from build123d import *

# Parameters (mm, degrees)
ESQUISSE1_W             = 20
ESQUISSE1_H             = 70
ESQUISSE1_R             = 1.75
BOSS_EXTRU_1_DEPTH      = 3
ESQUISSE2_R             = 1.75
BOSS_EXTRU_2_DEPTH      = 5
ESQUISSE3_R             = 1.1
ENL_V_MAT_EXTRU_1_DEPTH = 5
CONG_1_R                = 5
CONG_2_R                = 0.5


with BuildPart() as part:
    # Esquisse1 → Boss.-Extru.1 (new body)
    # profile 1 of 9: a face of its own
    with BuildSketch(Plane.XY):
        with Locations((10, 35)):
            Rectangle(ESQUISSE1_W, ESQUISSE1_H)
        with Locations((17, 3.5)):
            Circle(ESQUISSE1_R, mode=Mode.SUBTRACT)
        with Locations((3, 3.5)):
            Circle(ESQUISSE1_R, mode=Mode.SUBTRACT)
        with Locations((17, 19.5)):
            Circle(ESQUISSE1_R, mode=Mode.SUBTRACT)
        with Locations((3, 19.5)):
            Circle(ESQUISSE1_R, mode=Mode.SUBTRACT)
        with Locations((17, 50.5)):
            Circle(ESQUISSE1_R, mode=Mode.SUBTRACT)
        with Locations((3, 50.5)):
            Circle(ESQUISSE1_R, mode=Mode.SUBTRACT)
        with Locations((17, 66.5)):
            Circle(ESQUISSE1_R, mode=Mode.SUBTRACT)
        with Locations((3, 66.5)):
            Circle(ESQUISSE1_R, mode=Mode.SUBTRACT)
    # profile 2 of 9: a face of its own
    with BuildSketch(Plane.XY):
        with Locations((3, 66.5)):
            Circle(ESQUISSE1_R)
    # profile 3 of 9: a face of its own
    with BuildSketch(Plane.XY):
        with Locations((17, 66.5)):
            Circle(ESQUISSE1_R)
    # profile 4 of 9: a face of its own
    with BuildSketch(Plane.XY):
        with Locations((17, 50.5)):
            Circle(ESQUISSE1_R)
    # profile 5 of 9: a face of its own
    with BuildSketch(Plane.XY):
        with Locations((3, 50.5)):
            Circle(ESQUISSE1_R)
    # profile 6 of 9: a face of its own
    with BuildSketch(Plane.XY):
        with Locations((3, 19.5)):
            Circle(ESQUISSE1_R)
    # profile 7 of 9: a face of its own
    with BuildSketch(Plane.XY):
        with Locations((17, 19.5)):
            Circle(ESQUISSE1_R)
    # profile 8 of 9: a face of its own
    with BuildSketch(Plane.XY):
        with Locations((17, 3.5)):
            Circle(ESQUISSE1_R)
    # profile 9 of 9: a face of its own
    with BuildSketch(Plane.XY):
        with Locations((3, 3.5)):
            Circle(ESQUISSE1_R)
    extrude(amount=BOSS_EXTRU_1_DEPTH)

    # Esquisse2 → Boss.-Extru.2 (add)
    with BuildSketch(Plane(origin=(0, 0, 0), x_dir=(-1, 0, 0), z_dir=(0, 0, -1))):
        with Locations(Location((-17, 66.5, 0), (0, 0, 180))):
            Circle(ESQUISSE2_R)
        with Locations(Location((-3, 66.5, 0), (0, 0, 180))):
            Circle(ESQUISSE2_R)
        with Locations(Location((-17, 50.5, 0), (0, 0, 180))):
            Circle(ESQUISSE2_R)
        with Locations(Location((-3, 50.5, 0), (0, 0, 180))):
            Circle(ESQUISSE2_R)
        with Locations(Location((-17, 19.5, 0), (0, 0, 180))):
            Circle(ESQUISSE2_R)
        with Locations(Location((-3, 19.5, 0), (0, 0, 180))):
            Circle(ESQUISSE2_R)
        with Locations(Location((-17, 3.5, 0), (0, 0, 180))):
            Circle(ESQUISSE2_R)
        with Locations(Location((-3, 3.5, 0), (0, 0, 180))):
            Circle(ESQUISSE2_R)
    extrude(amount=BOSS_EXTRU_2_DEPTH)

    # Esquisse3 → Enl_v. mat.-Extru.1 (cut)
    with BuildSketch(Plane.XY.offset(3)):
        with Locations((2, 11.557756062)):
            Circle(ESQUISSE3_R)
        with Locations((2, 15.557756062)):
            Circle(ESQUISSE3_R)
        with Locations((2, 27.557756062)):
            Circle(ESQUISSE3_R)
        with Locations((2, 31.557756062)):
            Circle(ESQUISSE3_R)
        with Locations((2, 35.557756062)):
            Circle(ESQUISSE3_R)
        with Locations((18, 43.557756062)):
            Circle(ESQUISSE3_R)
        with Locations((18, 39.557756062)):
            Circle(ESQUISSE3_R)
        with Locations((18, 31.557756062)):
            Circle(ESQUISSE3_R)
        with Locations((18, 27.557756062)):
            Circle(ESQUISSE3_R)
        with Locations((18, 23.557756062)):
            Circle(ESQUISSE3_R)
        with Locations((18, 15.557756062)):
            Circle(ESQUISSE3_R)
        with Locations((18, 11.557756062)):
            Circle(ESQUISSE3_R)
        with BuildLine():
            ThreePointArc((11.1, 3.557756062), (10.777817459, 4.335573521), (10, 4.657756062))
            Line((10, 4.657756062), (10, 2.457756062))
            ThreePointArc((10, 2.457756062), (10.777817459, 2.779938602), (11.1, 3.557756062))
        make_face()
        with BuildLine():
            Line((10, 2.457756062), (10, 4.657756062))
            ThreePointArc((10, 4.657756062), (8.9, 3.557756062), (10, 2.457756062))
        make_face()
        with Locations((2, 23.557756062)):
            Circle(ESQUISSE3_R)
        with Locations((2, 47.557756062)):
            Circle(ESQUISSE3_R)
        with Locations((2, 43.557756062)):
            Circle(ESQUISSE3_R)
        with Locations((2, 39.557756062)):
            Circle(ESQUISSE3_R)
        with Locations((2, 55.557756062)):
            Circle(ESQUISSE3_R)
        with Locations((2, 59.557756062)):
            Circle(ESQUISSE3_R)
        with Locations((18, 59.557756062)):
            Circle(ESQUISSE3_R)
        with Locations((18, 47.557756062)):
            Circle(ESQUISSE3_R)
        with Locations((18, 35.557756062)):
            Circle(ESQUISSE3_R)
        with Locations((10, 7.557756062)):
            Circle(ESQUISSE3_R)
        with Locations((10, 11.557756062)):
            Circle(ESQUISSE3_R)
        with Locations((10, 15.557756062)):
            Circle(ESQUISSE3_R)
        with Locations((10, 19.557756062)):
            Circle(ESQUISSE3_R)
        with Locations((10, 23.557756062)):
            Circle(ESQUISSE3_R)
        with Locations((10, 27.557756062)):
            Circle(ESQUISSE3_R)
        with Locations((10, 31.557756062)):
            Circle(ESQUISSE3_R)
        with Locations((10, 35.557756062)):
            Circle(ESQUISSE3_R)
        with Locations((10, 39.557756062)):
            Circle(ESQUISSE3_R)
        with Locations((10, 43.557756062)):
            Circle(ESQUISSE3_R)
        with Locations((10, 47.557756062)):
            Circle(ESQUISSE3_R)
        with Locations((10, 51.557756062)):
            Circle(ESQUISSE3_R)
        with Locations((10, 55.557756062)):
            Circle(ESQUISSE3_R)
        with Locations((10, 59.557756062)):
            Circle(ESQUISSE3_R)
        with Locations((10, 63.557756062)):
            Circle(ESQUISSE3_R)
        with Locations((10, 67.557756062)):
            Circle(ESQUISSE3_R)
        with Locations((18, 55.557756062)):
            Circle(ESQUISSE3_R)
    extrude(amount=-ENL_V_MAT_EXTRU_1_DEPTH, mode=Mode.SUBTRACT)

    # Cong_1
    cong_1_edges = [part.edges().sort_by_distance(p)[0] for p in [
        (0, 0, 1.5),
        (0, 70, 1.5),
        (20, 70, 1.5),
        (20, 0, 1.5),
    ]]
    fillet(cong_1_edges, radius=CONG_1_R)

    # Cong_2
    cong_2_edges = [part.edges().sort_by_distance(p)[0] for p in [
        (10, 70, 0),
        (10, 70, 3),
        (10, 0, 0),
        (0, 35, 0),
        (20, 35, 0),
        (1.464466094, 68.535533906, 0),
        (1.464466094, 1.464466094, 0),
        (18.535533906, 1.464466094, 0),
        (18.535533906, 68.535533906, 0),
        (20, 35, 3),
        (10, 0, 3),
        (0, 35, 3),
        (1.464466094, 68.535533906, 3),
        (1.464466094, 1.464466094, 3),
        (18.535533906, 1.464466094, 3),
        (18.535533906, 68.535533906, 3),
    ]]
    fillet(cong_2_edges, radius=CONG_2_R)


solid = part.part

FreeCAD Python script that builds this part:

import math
import FreeCAD as App
import Part
import Sketcher
from FreeCAD import Vector


def edges_at(feature, points):
    """Names of the edges that pass closest to the given points."""
    edges = feature.Shape.Edges
    near = lambda p: min(range(len(edges)), key=lambda i: edges[i].distToShape(Part.Vertex(*p))[0])
    return sorted({f"Edge{near(p) + 1}" for p in points})


def add_polygon(sketch, points):
    """Adds a closed chain of lines whose ends are joined by coincident constraints."""
    first, n = sketch.GeometryCount, len(points)
    for a, b in zip(points, points[1:] + points[:1]):
        sketch.addGeometry(Part.LineSegment(App.Vector(*a, 0), App.Vector(*b, 0)), False)
    for i in range(n):
        sketch.addConstraint(Sketcher.Constraint("Coincident", first + i, 2, first + (i + 1) % n, 1))

doc = App.newDocument("Part")
body = doc.addObject("PartDesign::Body", "Body")

# Sketch on XY plane
sketch1 = body.newObject("Sketcher::SketchObject", "Sketch")
sketch1.AttachmentSupport = (doc.getObject("XY_Plane"), [""])
sketch1.MapMode = "FlatFace"
add_polygon(sketch1, [(0, 70), (0, 0), (20, 0), (20, 70)])  # lines 0-3
sketch1.addConstraint(Sketcher.Constraint("Vertical", 0))
sketch1.addConstraint(Sketcher.Constraint("Horizontal", 1))
sketch1.addConstraint(Sketcher.Constraint("Vertical", 2))
sketch1.addConstraint(Sketcher.Constraint("Horizontal", 3))
sketch1.addConstraint(Sketcher.Constraint("Coincident", 0, 2, -1, 1))
sketch1.addConstraint(Sketcher.Constraint("DistanceX", 1, 1, 1, 2, 20.0))
sketch1.addConstraint(Sketcher.Constraint("DistanceY", 0, 2, 0, 1, 70.0))
pad1 = body.newObject("PartDesign::Pad", "Pad")
pad1.Profile = sketch1
pad1.Length = 3

# Sketch on XY plane
sketch2 = body.newObject("Sketcher::SketchObject", "Sketch001")
sketch2.AttachmentSupport = (doc.getObject("XY_Plane"), [""])
sketch2.MapMode = "FlatFace"
sketch2.addGeometry(Part.Circle(Vector(17, 66.5, 0), Vector(0, 0, 1), 1.8), False)
sketch2.addGeometry(Part.Circle(Vector(3, 66.5, 0), Vector(0, 0, 1), 1.8), False)
sketch2.addGeometry(Part.Circle(Vector(17, 50.5, 0), Vector(0, 0, 1), 1.8), False)
sketch2.addGeometry(Part.Circle(Vector(3, 50.5, 0), Vector(0, 0, 1), 1.8), False)
sketch2.addGeometry(Part.Circle(Vector(17, 19.5, 0), Vector(0, 0, 1), 1.8), False)
sketch2.addGeometry(Part.Circle(Vector(3, 19.5, 0), Vector(0, 0, 1), 1.8), False)
sketch2.addGeometry(Part.Circle(Vector(17, 3.5, 0), Vector(0, 0, 1), 1.8), False)
sketch2.addGeometry(Part.Circle(Vector(3, 3.5, 0), Vector(0, 0, 1), 1.8), False)
sketch2.addConstraint(Sketcher.Constraint("Equal", 0, 1))
sketch2.addConstraint(Sketcher.Constraint("Equal", 1, 2))
sketch2.addConstraint(Sketcher.Constraint("Equal", 2, 3))
sketch2.addConstraint(Sketcher.Constraint("Equal", 3, 4))
sketch2.addConstraint(Sketcher.Constraint("Equal", 4, 5))
sketch2.addConstraint(Sketcher.Constraint("Equal", 5, 6))
sketch2.addConstraint(Sketcher.Constraint("Equal", 6, 7))
sketch2.addConstraint(Sketcher.Constraint("Horizontal", 0, 3, 1, 3))
sketch2.addConstraint(Sketcher.Constraint("Horizontal", 2, 3, 3, 3))
sketch2.addConstraint(Sketcher.Constraint("Horizontal", 4, 3, 5, 3))
sketch2.addConstraint(Sketcher.Constraint("Horizontal", 6, 3, 7, 3))
sketch2.addConstraint(Sketcher.Constraint("Vertical", 0, 3, 2, 3))
sketch2.addConstraint(Sketcher.Constraint("Vertical", 1, 3, 3, 3))
sketch2.addConstraint(Sketcher.Constraint("Vertical", 2, 3, 4, 3))
sketch2.addConstraint(Sketcher.Constraint("Vertical", 3, 3, 5, 3))
sketch2.addConstraint(Sketcher.Constraint("Vertical", 4, 3, 6, 3))
sketch2.addConstraint(Sketcher.Constraint("Vertical", 5, 3, 7, 3))
sketch2.addConstraint(Sketcher.Constraint("Diameter", 0, 3.5))
sketch2.addConstraint(Sketcher.Constraint("DistanceX", -1, 1, 0, 3, 17.0))
sketch2.addConstraint(Sketcher.Constraint("DistanceX", -1, 1, 1, 3, 3.0))
sketch2.addConstraint(Sketcher.Constraint("DistanceY", 2, 3, 0, 3, 16.0))
sketch2.addConstraint(Sketcher.Constraint("DistanceY", 4, 3, 2, 3, 31.0))
sketch2.addConstraint(Sketcher.Constraint("DistanceY", 6, 3, 4, 3, 16.0))
sketch2.addConstraint(Sketcher.Constraint("DistanceY", -1, 1, 0, 3, 66.5))
pad2 = body.newObject("PartDesign::Pad", "Pad001")
pad2.Profile = sketch2
pad2.Length = 5
pad2.Reversed = True

# Sketch on XY plane
sketch3 = body.newObject("Sketcher::SketchObject", "Sketch002")
sketch3.AttachmentSupport = (doc.getObject("XY_Plane"), [""])
sketch3.MapMode = "FlatFace"
sketch3.AttachmentOffset = App.Placement(Vector(0, 0, 3), App.Rotation())
sketch3.addGeometry(Part.Circle(Vector(2, 11.6, 0), Vector(0, 0, 1), 1.1), False)
sketch3.addGeometry(Part.Circle(Vector(2, 15.6, 0), Vector(0, 0, 1), 1.1), False)
sketch3.addGeometry(Part.Circle(Vector(2, 27.6, 0), Vector(0, 0, 1), 1.1), False)
sketch3.addGeometry(Part.Circle(Vector(2, 31.6, 0), Vector(0, 0, 1), 1.1), False)
sketch3.addGeometry(Part.Circle(Vector(2, 35.6, 0), Vector(0, 0, 1), 1.1), False)
sketch3.addGeometry(Part.Circle(Vector(18, 43.6, 0), Vector(0, 0, 1), 1.1), False)
sketch3.addGeometry(Part.Circle(Vector(18, 39.6, 0), Vector(0, 0, 1), 1.1), False)
sketch3.addGeometry(Part.Circle(Vector(18, 31.6, 0), Vector(0, 0, 1), 1.1), False)
sketch3.addGeometry(Part.Circle(Vector(18, 27.6, 0), Vector(0, 0, 1), 1.1), False)
sketch3.addGeometry(Part.Circle(Vector(18, 23.6, 0), Vector(0, 0, 1), 1.1), False)
sketch3.addGeometry(Part.Circle(Vector(18, 15.6, 0), Vector(0, 0, 1), 1.1), False)
sketch3.addGeometry(Part.Circle(Vector(18, 11.6, 0), Vector(0, 0, 1), 1.1), False)
sketch3.addGeometry(Part.ArcOfCircle(Part.Circle(Vector(10, 3.6, 0), Vector(0, 0, 1), 1.1), math.radians(0), math.radians(90)), False)
sketch3.addGeometry(Part.ArcOfCircle(Part.Circle(Vector(10, 3.6, 0), Vector(0, 0, 1), 1.1), math.radians(90), math.radians(270)), False)
sketch3.addGeometry(Part.ArcOfCircle(Part.Circle(Vector(10, 3.6, 0), Vector(0, 0, 1), 1.1), math.radians(-90), math.radians(0)), False)
sketch3.addGeometry(Part.Circle(Vector(2, 23.6, 0), Vector(0, 0, 1), 1.1), False)
sketch3.addGeometry(Part.Circle(Vector(2, 47.6, 0), Vector(0, 0, 1), 1.1), False)
sketch3.addGeometry(Part.Circle(Vector(2, 43.6, 0), Vector(0, 0, 1), 1.1), False)
sketch3.addGeometry(Part.Circle(Vector(2, 39.6, 0), Vector(0, 0, 1), 1.1), False)
sketch3.addGeometry(Part.Circle(Vector(2, 55.6, 0), Vector(0, 0, 1), 1.1), False)
sketch3.addGeometry(Part.Circle(Vector(2, 59.6, 0), Vector(0, 0, 1), 1.1), False)
sketch3.addGeometry(Part.Circle(Vector(18, 59.6, 0), Vector(0, 0, 1), 1.1), False)
sketch3.addGeometry(Part.Circle(Vector(18, 47.6, 0), Vector(0, 0, 1), 1.1), False)
sketch3.addGeometry(Part.Circle(Vector(18, 35.6, 0), Vector(0, 0, 1), 1.1), False)
sketch3.addGeometry(Part.Circle(Vector(10, 7.6, 0), Vector(0, 0, 1), 1.1), False)
sketch3.addGeometry(Part.Circle(Vector(10, 11.6, 0), Vector(0, 0, 1), 1.1), False)
sketch3.addGeometry(Part.Circle(Vector(10, 15.6, 0), Vector(0, 0, 1), 1.1), False)
sketch3.addGeometry(Part.Circle(Vector(10, 19.6, 0), Vector(0, 0, 1), 1.1), False)
sketch3.addGeometry(Part.Circle(Vector(10, 23.6, 0), Vector(0, 0, 1), 1.1), False)
sketch3.addGeometry(Part.Circle(Vector(10, 27.6, 0), Vector(0, 0, 1), 1.1), False)
sketch3.addGeometry(Part.Circle(Vector(10, 31.6, 0), Vector(0, 0, 1), 1.1), False)
sketch3.addGeometry(Part.Circle(Vector(10, 35.6, 0), Vector(0, 0, 1), 1.1), False)
sketch3.addGeometry(Part.Circle(Vector(10, 39.6, 0), Vector(0, 0, 1), 1.1), False)
sketch3.addGeometry(Part.Circle(Vector(10, 43.6, 0), Vector(0, 0, 1), 1.1), False)
sketch3.addGeometry(Part.Circle(Vector(10, 47.6, 0), Vector(0, 0, 1), 1.1), False)
sketch3.addGeometry(Part.Circle(Vector(10, 51.6, 0), Vector(0, 0, 1), 1.1), False)
sketch3.addGeometry(Part.Circle(Vector(10, 55.6, 0), Vector(0, 0, 1), 1.1), False)
sketch3.addGeometry(Part.Circle(Vector(10, 59.6, 0), Vector(0, 0, 1), 1.1), False)
sketch3.addGeometry(Part.Circle(Vector(10, 63.6, 0), Vector(0, 0, 1), 1.1), False)
sketch3.addGeometry(Part.Circle(Vector(10, 67.6, 0), Vector(0, 0, 1), 1.1), False)
sketch3.addGeometry(Part.Circle(Vector(18, 55.6, 0), Vector(0, 0, 1), 1.1), False)
sketch3.addConstraint(Sketcher.Constraint("Tangent", 12, 2, 13, 1))
sketch3.addConstraint(Sketcher.Constraint("Tangent", 13, 2, 14, 1))
sketch3.addConstraint(Sketcher.Constraint("Tangent", 14, 2, 12, 1))
sketch3.addConstraint(Sketcher.Constraint("Equal", 0, 1))
sketch3.addConstraint(Sketcher.Constraint("Equal", 1, 2))
sketch3.addConstraint(Sketcher.Constraint("Equal", 2, 3))
sketch3.addConstraint(Sketcher.Constraint("Equal", 3, 4))
sketch3.addConstraint(Sketcher.Constraint("Equal", 4, 5))
sketch3.addConstraint(Sketcher.Constraint("Equal", 5, 6))
sketch3.addConstraint(Sketcher.Constraint("Equal", 6, 7))
sketch3.addConstraint(Sketcher.Constraint("Equal", 7, 8))
sketch3.addConstraint(Sketcher.Constraint("Equal", 8, 9))
sketch3.addConstraint(Sketcher.Constraint("Equal", 9, 10))
sketch3.addConstraint(Sketcher.Constraint("Equal", 10, 11))
sketch3.addConstraint(Sketcher.Constraint("Equal", 11, 12))
sketch3.addConstraint(Sketcher.Constraint("Equal", 14, 15))
sketch3.addConstraint(Sketcher.Constraint("Equal", 15, 16))
sketch3.addConstraint(Sketcher.Constraint("Equal", 16, 17))
sketch3.addConstraint(Sketcher.Constraint("Equal", 17, 18))
sketch3.addConstraint(Sketcher.Constraint("Equal", 18, 19))
sketch3.addConstraint(Sketcher.Constraint("Equal", 19, 20))
sketch3.addConstraint(Sketcher.Constraint("Equal", 20, 21))
sketch3.addConstraint(Sketcher.Constraint("Equal", 21, 22))
sketch3.addConstraint(Sketcher.Constraint("Equal", 22, 23))
sketch3.addConstraint(Sketcher.Constraint("Equal", 23, 24))
sketch3.addConstraint(Sketcher.Constraint("Equal", 24, 25))
sketch3.addConstraint(Sketcher.Constraint("Equal", 25, 26))
sketch3.addConstraint(Sketcher.Constraint("Equal", 26, 27))
sketch3.addConstraint(Sketcher.Constraint("Equal", 27, 28))
sketch3.addConstraint(Sketcher.Constraint("Equal", 28, 29))
sketch3.addConstraint(Sketcher.Constraint("Equal", 29, 30))
sketch3.addConstraint(Sketcher.Constraint("Equal", 30, 31))
sketch3.addConstraint(Sketcher.Constraint("Equal", 31, 32))
sketch3.addConstraint(Sketcher.Constraint("Equal", 32, 33))
sketch3.addConstraint(Sketcher.Constraint("Equal", 33, 34))
sketch3.addConstraint(Sketcher.Constraint("Equal", 34, 35))
sketch3.addConstraint(Sketcher.Constraint("Equal", 35, 36))
sketch3.addConstraint(Sketcher.Constraint("Equal", 36, 37))
sketch3.addConstraint(Sketcher.Constraint("Equal", 37, 38))
sketch3.addConstraint(Sketcher.Constraint("Equal", 38, 39))
sketch3.addConstraint(Sketcher.Constraint("Equal", 39, 40))
sketch3.addConstraint(Sketcher.Constraint("Horizontal", 3, 3, 7, 3))
sketch3.addConstraint(Sketcher.Constraint("Horizontal", 2, 3, 8, 3))
sketch3.addConstraint(Sketcher.Constraint("Horizontal", 1, 3, 10, 3))
sketch3.addConstraint(Sketcher.Constraint("Horizontal", 0, 3, 11, 3))
sketch3.addConstraint(Sketcher.Constraint("Horizontal", 9, 3, 15, 3))
sketch3.addConstraint(Sketcher.Constraint("Horizontal", 5, 3, 17, 3))
sketch3.addConstraint(Sketcher.Constraint("Horizontal", 6, 3, 18, 3))
sketch3.addConstraint(Sketcher.Constraint("Horizontal", 20, 3, 21, 3))
sketch3.addConstraint(Sketcher.Constraint("Horizontal", 16, 3, 22, 3))
sketch3.addConstraint(Sketcher.Constraint("Horizontal", 4, 3, 23, 3))
sketch3.addConstraint(Sketcher.Constraint("Horizontal", 11, 3, 25, 3))
sketch3.addConstraint(Sketcher.Constraint("Horizontal", 10, 3, 26, 3))
sketch3.addConstraint(Sketcher.Constraint("Horizontal", 15, 3, 28, 3))
sketch3.addConstraint(Sketcher.Constraint("Horizontal", 8, 3, 29, 3))
sketch3.addConstraint(Sketcher.Constraint("Horizontal", 7, 3, 30, 3))
sketch3.addConstraint(Sketcher.Constraint("Horizontal", 23, 3, 31, 3))
sketch3.addConstraint(Sketcher.Constraint("Horizontal", 18, 3, 32, 3))
sketch3.addConstraint(Sketcher.Constraint("Horizontal", 17, 3, 33, 3))
sketch3.addConstraint(Sketcher.Constraint("Horizontal", 22, 3, 34, 3))
sketch3.addConstraint(Sketcher.Constraint("Horizontal", 19, 3, 36, 3))
sketch3.addConstraint(Sketcher.Constraint("Horizontal", 21, 3, 37, 3))
sketch3.addConstraint(Sketcher.Constraint("Horizontal", 36, 3, 40, 3))
sketch3.addConstraint(Sketcher.Constraint("Horizontal", 13, 3, 14, 2))
sketch3.addConstraint(Sketcher.Constraint("Vertical", 0, 3, 1, 3))
sketch3.addConstraint(Sketcher.Constraint("Vertical", 1, 3, 2, 3))
sketch3.addConstraint(Sketcher.Constraint("Vertical", 2, 3, 3, 3))
sketch3.addConstraint(Sketcher.Constraint("Vertical", 3, 3, 4, 3))
sketch3.addConstraint(Sketcher.Constraint("Vertical", 5, 3, 6, 3))
sketch3.addConstraint(Sketcher.Constraint("Vertical", 6, 3, 7, 3))
sketch3.addConstraint(Sketcher.Constraint("Vertical", 7, 3, 8, 3))
sketch3.addConstraint(Sketcher.Constraint("Vertical", 8, 3, 9, 3))
sketch3.addConstraint(Sketcher.Constraint("Vertical", 9, 3, 10, 3))
sketch3.addConstraint(Sketcher.Constraint("Vertical", 10, 3, 11, 3))
sketch3.addConstraint(Sketcher.Constraint("Vertical", 4, 3, 15, 3))
sketch3.addConstraint(Sketcher.Constraint("Vertical", 15, 3, 16, 3))
sketch3.addConstraint(Sketcher.Constraint("Vertical", 16, 3, 17, 3))
sketch3.addConstraint(Sketcher.Constraint("Vertical", 17, 3, 18, 3))
sketch3.addConstraint(Sketcher.Constraint("Vertical", 18, 3, 19, 3))
sketch3.addConstraint(Sketcher.Constraint("Vertical", 19, 3, 20, 3))
sketch3.addConstraint(Sketcher.Constraint("Vertical", 11, 3, 21, 3))
sketch3.addConstraint(Sketcher.Constraint("Vertical", 21, 3, 22, 3))
sketch3.addConstraint(Sketcher.Constraint("Vertical", 22, 3, 23, 3))
sketch3.addConstraint(Sketcher.Constraint("Vertical", 14, 3, 24, 3))
sketch3.addConstraint(Sketcher.Constraint("Vertical", 24, 3, 25, 3))
sketch3.addConstraint(Sketcher.Constraint("Vertical", 25, 3, 26, 3))
sketch3.addConstraint(Sketcher.Constraint("Vertical", 26, 3, 27, 3))
sketch3.addConstraint(Sketcher.Constraint("Vertical", 27, 3, 28, 3))
sketch3.addConstraint(Sketcher.Constraint("Vertical", 28, 3, 29, 3))
sketch3.addConstraint(Sketcher.Constraint("Vertical", 29, 3, 30, 3))
sketch3.addConstraint(Sketcher.Constraint("Vertical", 30, 3, 31, 3))
sketch3.addConstraint(Sketcher.Constraint("Vertical", 31, 3, 32, 3))
sketch3.addConstraint(Sketcher.Constraint("Vertical", 32, 3, 33, 3))
sketch3.addConstraint(Sketcher.Constraint("Vertical", 33, 3, 34, 3))
sketch3.addConstraint(Sketcher.Constraint("Vertical", 34, 3, 35, 3))
sketch3.addConstraint(Sketcher.Constraint("Vertical", 35, 3, 36, 3))
sketch3.addConstraint(Sketcher.Constraint("Vertical", 36, 3, 37, 3))
sketch3.addConstraint(Sketcher.Constraint("Vertical", 37, 3, 38, 3))
sketch3.addConstraint(Sketcher.Constraint("Vertical", 38, 3, 39, 3))
sketch3.addConstraint(Sketcher.Constraint("Vertical", 23, 3, 40, 3))
sketch3.addConstraint(Sketcher.Constraint("Vertical", 39, 3, 12, 2))
sketch3.addConstraint(Sketcher.Constraint("Vertical", 12, 2, 13, 2))
sketch3.addConstraint(Sketcher.Constraint("Diameter", 0, 2.2))
sketch3.addConstraint(Sketcher.Constraint("DistanceX", -1, 1, 0, 3, 2.0))
sketch3.addConstraint(Sketcher.Constraint("DistanceX", -1, 1, 5, 3, 18.0))
sketch3.addConstraint(Sketcher.Constraint("DistanceX", -1, 1, 12, 3, 10.0))
sketch3.addConstraint(Sketcher.Constraint("DistanceY", 0, 3, 1, 3, 4.0))
sketch3.addConstraint(Sketcher.Constraint("DistanceY", 1, 3, 2, 3, 12.0))
sketch3.addConstraint(Sketcher.Constraint("DistanceY", 2, 3, 3, 3, 4.0))
sketch3.addConstraint(Sketcher.Constraint("DistanceY", 3, 3, 4, 3, 4.0))
sketch3.addConstraint(Sketcher.Constraint("DistanceY", 4, 3, 5, 3, 8.0))
sketch3.addConstraint(Sketcher.Constraint("DistanceY", 6, 3, 5, 3, 4.0))
sketch3.addConstraint(Sketcher.Constraint("DistanceY", 9, 3, 8, 3, 4.0))
sketch3.addConstraint(Sketcher.Constraint("DistanceY", 12, 3, 0, 3, 8.0))
sketch3.addConstraint(Sketcher.Constraint("DistanceY", 4, 3, 16, 3, 12.0))
sketch3.addConstraint(Sketcher.Constraint("DistanceY", 16, 3, 19, 3, 8.0))
sketch3.addConstraint(Sketcher.Constraint("DistanceY", 19, 3, 20, 3, 4.0))
sketch3.addConstraint(Sketcher.Constraint("DistanceY", 13, 3, 24, 3, 4.0))
sketch3.addConstraint(Sketcher.Constraint("DistanceY", 26, 3, 27, 3, 4.0))
sketch3.addConstraint(Sketcher.Constraint("DistanceY", 34, 3, 35, 3, 4.0))
sketch3.addConstraint(Sketcher.Constraint("DistanceY", 37, 3, 38, 3, 4.0))
sketch3.addConstraint(Sketcher.Constraint("DistanceY", 38, 3, 39, 3, 4.0))
sketch3.addConstraint(Sketcher.Constraint("DistanceY", -1, 1, 0, 3, 11.557756))
pocket1 = body.newObject("PartDesign::Pocket", "Pocket")
pocket1.Profile = sketch3
pocket1.Length = 5
doc.recompute()

fillet = body.newObject("PartDesign::Fillet", "Fillet")
fillet.Base = (pocket1, edges_at(pocket1, [
    (0, 0, 1.5),
    (0, 70, 1.5),
    (20, 70, 1.5),
    (20, 0, 1.5),
]))
fillet.Radius = 5
doc.recompute()

fillet2 = body.newObject("PartDesign::Fillet", "Fillet001")
fillet2.Base = (fillet, edges_at(fillet, [
    (10, 70, 0),
    (10, 70, 3),
    (10, 0, 0),
    (0, 35, 0),
    (20, 35, 0),
    (1.464, 68.536, 0),
    (1.464, 1.464, 0),
    (18.536, 1.464, 0),
    (18.536, 68.536, 0),
    (20, 35, 3),
    (10, 0, 3),
    (0, 35, 3),
    (1.464, 68.536, 3),
    (1.464, 1.464, 3),
    (18.536, 1.464, 3),
    (18.536, 68.536, 3),
]))
fillet2.Radius = 0.5

doc.recompute()
